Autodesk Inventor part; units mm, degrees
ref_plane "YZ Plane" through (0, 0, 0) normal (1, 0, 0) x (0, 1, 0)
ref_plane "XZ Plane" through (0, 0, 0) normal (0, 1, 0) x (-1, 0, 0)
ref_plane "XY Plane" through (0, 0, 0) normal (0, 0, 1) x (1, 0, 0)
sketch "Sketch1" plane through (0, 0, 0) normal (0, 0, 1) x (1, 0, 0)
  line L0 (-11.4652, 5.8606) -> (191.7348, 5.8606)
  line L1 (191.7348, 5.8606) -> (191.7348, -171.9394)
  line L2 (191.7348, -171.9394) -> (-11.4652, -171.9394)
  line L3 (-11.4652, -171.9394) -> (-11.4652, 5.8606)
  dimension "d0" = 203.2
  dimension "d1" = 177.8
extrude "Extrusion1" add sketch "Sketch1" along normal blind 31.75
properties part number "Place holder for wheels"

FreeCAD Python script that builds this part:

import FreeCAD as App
import Part
import Sketcher
from FreeCAD import Vector
Q = App.Units.Quantity

doc = App.newDocument("Part")
body = doc.addObject("PartDesign::Body", "Body")

sketch1 = body.newObject("Sketcher::SketchObject", "Sketch")
sketch1.AttachmentSupport = (doc.getObject("XY_Plane"), [""])
sketch1.MapMode = "FlatFace"
sketch1.addGeometry([
    Part.LineSegment(Vector(191.7348, 5.8606, 0), Vector(-11.4652, 5.8606, 0)),
    Part.LineSegment(Vector(-11.4652, 5.8606, 0), Vector(-11.4652, -171.9394, 0)),
    Part.LineSegment(Vector(-11.4652, -171.9394, 0), Vector(191.7348, -171.9394, 0)),
    Part.LineSegment(Vector(191.7348, -171.9394, 0), Vector(191.7348, 5.8606, 0)),
], False)
sketch1.addConstraint([
    Sketcher.Constraint("Coincident", 0, 2, 1, 1),
    Sketcher.Constraint("Coincident", 1, 2, 2, 1),
    Sketcher.Constraint("Coincident", 2, 2, 3, 1),
    Sketcher.Constraint("Coincident", 3, 2, 0, 1),
    Sketcher.Constraint("Horizontal", 0),
    Sketcher.Constraint("Vertical", 1),
    Sketcher.Constraint("Horizontal", 2),
    Sketcher.Constraint("Vertical", 3),
    Sketcher.Constraint("DistanceX", 0, 2, 0, 1, Q("8 in")),
    Sketcher.Constraint("DistanceY", 1, 2, 1, 1, Q("7 in")),
    Sketcher.Constraint("DistanceX", 0, 2, -1, 1, 11.4652),
    Sketcher.Constraint("DistanceY", -1, 1, 0, 2, 5.8606),
])
pad1 = body.newObject("PartDesign::Pad", "Pad")
pad1.Profile = sketch1
pad1.Length = Q("1.25 in")

doc.recompute()
